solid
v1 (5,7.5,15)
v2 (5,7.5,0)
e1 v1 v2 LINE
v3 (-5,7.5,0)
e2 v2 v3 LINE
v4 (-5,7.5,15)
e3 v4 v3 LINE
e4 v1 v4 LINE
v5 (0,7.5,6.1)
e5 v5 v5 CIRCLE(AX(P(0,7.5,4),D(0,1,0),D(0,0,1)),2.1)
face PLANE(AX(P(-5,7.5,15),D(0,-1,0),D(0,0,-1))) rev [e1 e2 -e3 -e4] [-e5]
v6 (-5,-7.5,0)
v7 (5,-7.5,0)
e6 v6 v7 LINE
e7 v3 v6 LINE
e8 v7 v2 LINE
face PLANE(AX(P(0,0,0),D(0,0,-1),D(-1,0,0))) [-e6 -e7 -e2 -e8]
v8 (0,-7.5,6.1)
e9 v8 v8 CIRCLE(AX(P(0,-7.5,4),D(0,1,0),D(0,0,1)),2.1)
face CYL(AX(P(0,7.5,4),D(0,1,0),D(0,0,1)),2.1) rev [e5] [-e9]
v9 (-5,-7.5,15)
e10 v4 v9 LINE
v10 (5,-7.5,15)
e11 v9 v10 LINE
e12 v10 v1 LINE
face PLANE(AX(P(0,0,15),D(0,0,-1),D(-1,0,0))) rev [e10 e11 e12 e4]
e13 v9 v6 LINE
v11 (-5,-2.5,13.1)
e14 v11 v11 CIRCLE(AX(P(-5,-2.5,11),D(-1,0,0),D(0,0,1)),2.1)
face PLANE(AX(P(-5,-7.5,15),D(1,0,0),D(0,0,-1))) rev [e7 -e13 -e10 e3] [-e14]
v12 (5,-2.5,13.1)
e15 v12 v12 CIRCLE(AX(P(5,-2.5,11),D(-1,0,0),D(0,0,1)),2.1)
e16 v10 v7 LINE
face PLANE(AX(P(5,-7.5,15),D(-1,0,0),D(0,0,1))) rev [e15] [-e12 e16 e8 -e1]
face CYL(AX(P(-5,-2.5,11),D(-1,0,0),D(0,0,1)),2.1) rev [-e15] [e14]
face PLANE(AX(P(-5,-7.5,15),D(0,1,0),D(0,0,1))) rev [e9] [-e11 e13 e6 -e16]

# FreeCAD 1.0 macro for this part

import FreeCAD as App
import Part
import Sketcher

V = App.Vector
Q = App.Units.Quantity


def add_polygon(sketch, points):
    """Adds a closed chain of lines whose ends are joined by coincident constraints."""
    first, n = sketch.GeometryCount, len(points)
    for a, b in zip(points, points[1:] + points[:1]):
        sketch.addGeometry(Part.LineSegment(App.Vector(*a, 0), App.Vector(*b, 0)), False)
    for i in range(n):
        sketch.addConstraint(Sketcher.Constraint("Coincident", first + i, 2, first + (i + 1) % n, 1))

doc = App.newDocument("Part")
body = doc.addObject("PartDesign::Body", "Body")

# Sketch on XY plane
sketch1 = body.newObject("Sketcher::SketchObject", "Sketch")
sketch1.AttachmentSupport = (doc.getObject("XY_Plane"), [""])
sketch1.MapMode = "FlatFace"
add_polygon(sketch1, [(-5, 7.5), (-5, -7.5), (5, -7.5), (5, 7.5)])  # lines 0-3
sketch1.addConstraint([
    Sketcher.Constraint("Vertical", 0),
    Sketcher.Constraint("Horizontal", 1),
    Sketcher.Constraint("Vertical", 2),
    Sketcher.Constraint("Horizontal", 3),
    Sketcher.Constraint("Symmetric", 0, 2, 2, 2, -1, 1),
    Sketcher.Constraint("DistanceX", 1, 1, 1, 2, Q("10 mm")),
    Sketcher.Constraint("DistanceY", 0, 2, 0, 1, Q("15 mm")),
])
pad1 = body.newObject("PartDesign::Pad", "Pad")
pad1.Profile = sketch1
pad1.Length = 15

# Sketch on XZ plane
sketch2 = body.newObject("Sketcher::SketchObject", "Sketch001")
sketch2.AttachmentSupport = (doc.getObject("XZ_Plane"), [""])
sketch2.MapMode = "FlatFace"
sketch2.AttachmentOffset = App.Placement(V(0, 0, -7.5), App.Rotation())
sketch2.addGeometry(Part.Circle(V(0, 4, 0), V(0, 0, 1), 2.1), False)
sketch2.addConstraint([
    Sketcher.Constraint("PointOnObject", 0, 3, -2),
    Sketcher.Constraint("Diameter", 0, Q("4.2 mm")),
    Sketcher.Constraint("DistanceY", -1, 1, 0, 3, Q("4 mm")),
])
doc.recompute()
hole = body.newObject("PartDesign::Hole", "Hole")
hole.Profile = sketch2
hole.ThreadType = "None"
hole.Diameter = 4.2
hole.DepthType = "ThroughAll"
hole.Reversed = True

# Sketch on YZ plane
sketch3 = body.newObject("Sketcher::SketchObject", "Sketch002")
sketch3.AttachmentSupport = (doc.getObject("YZ_Plane"), [""])
sketch3.MapMode = "FlatFace"
sketch3.AttachmentOffset = App.Placement(V(0, 0, -5), App.Rotation())
sketch3.addGeometry(Part.Circle(V(-2.5, 11, 0), V(0, 0, 1), 2.1), False)
sketch3.addConstraint([
    Sketcher.Constraint("Diameter", 0, Q("4.2 mm")),
    Sketcher.Constraint("DistanceY", -1, 1, 0, 3, Q("11 mm")),
    Sketcher.Constraint("DistanceX", 0, 3, -1, 1, Q("2.5 mm")),
])
doc.recompute()
hole2 = body.newObject("PartDesign::Hole", "Hole001")
hole2.Profile = sketch3
hole2.ThreadType = "None"
hole2.Diameter = 4.2
hole2.DepthType = "ThroughAll"
hole2.Reversed = True

doc.recompute()
